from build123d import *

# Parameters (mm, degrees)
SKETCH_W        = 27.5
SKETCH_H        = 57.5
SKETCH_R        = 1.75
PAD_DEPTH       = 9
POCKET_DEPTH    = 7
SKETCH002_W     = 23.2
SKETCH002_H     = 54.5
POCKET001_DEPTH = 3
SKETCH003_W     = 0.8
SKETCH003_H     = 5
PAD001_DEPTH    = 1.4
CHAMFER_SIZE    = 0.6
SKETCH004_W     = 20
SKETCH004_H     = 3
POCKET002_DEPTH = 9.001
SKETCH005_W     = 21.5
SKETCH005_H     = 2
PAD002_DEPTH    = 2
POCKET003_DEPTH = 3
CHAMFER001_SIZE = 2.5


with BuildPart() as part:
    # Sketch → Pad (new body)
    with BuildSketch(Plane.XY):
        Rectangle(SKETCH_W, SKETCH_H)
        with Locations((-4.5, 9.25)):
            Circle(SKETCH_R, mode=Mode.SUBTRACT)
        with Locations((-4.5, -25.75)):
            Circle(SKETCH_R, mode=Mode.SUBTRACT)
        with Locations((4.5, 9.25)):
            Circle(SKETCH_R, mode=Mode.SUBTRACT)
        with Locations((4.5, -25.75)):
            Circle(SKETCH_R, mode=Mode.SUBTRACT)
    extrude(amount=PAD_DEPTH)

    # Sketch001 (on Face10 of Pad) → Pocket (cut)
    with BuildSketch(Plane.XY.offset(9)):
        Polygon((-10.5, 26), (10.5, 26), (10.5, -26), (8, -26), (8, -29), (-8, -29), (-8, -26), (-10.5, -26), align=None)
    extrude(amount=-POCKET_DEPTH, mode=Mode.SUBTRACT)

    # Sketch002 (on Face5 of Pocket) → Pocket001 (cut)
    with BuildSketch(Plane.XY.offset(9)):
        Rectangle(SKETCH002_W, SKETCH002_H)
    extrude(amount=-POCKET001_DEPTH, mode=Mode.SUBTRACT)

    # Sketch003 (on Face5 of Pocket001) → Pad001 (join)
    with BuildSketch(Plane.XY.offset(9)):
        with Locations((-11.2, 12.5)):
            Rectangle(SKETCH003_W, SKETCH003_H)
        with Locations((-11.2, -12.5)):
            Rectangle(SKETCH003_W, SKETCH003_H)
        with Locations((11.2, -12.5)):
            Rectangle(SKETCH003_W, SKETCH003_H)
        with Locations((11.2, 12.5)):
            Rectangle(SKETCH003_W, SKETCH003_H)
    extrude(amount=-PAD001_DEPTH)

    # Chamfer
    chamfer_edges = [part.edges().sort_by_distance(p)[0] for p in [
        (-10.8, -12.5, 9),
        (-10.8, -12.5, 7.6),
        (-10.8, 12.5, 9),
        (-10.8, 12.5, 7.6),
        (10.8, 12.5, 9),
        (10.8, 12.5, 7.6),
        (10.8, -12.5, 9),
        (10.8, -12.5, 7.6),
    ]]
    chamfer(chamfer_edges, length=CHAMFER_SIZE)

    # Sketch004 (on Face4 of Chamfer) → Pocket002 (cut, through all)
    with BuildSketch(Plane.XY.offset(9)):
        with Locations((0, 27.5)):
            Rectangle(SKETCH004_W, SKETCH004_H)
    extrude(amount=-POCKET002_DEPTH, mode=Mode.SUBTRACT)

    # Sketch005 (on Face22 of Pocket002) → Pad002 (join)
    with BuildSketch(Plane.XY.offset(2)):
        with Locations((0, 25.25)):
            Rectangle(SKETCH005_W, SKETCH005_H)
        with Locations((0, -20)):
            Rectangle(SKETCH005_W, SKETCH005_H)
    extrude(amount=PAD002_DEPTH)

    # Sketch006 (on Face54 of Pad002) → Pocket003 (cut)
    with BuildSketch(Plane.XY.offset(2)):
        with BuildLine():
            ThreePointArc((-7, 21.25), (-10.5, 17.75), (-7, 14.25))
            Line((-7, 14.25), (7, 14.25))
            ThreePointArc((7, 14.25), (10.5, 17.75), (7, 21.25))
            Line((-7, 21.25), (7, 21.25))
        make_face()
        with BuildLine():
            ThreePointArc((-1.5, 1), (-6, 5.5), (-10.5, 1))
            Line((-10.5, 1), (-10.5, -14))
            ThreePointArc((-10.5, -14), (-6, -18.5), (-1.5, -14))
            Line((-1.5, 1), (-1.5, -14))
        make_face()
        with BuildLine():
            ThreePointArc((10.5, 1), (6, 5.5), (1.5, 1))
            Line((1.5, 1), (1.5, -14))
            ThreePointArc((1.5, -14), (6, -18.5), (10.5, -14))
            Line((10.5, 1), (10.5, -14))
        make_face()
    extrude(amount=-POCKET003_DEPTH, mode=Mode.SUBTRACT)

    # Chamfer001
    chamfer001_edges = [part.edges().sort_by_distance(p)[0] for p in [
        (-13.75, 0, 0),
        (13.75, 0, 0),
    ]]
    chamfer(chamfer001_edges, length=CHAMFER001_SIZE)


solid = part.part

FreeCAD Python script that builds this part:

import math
import FreeCAD as App
import Part
import Sketcher
Q = App.Units.Quantity


def edges_at(feature, points):
    """Names of the edges that pass closest to the given points."""
    edges = feature.Shape.Edges
    near = lambda p: min(range(len(edges)), key=lambda i: edges[i].distToShape(Part.Vertex(*p))[0])
    return sorted({f"Edge{near(p) + 1}" for p in points})

doc = App.newDocument("Part")
body = doc.addObject("PartDesign::Body", "Body")

# Sketch on XY plane
sketch1 = doc.addObject("Sketcher::SketchObject", "Sketch")
body.addObject(sketch1)
sketch1.AttachmentSupport = (doc.XY_Plane, [""])
sketch1.MapMode = "FlatFace"
sketch1.addGeometry(Part.LineSegment(App.Vector(-13.8, 28.8, 0), App.Vector(-13.8, -28.8, 0)), False)
sketch1.addGeometry(Part.LineSegment(App.Vector(-13.8, -28.8, 0), App.Vector(13.8, -28.8, 0)), False)
sketch1.addGeometry(Part.LineSegment(App.Vector(13.8, -28.8, 0), App.Vector(13.8, 28.8, 0)), False)
sketch1.addGeometry(Part.LineSegment(App.Vector(13.8, 28.8, 0), App.Vector(-13.8, 28.8, 0)), False)
sketch1.addGeometry(Part.Circle(App.Vector(-4.5, -25.8, 0), App.Vector(0, 0, 1), 1.8), False)
sketch1.addGeometry(Part.Circle(App.Vector(4.5, -25.8, 0), App.Vector(0, 0, 1), 1.8), False)
sketch1.addGeometry(Part.Circle(App.Vector(-4.5, 9.2, 0), App.Vector(0, 0, 1), 1.8), False)
sketch1.addGeometry(Part.Circle(App.Vector(4.5, 9.2, 0), App.Vector(0, 0, 1), 1.8), False)
sketch1.addConstraint(Sketcher.Constraint("Coincident", 0, 2, 1, 1))
sketch1.addConstraint(Sketcher.Constraint("Coincident", 1, 2, 2, 1))
sketch1.addConstraint(Sketcher.Constraint("Coincident", 2, 2, 3, 1))
sketch1.addConstraint(Sketcher.Constraint("Coincident", 3, 2, 0, 1))
sketch1.addConstraint(Sketcher.Constraint("Vertical", 0))
sketch1.addConstraint(Sketcher.Constraint("Horizontal", 1))
sketch1.addConstraint(Sketcher.Constraint("Vertical", 2))
sketch1.addConstraint(Sketcher.Constraint("Horizontal", 3))
sketch1.addConstraint(Sketcher.Constraint("Equal", 4, 5))
sketch1.addConstraint(Sketcher.Constraint("Equal", 5, 6))
sketch1.addConstraint(Sketcher.Constraint("Equal", 6, 7))
sketch1.addConstraint(Sketcher.Constraint("Symmetric", 0, 2, 2, 2, -1, 1))
sketch1.addConstraint(Sketcher.Constraint("Symmetric", 4, 3, 5, 3, -2))
sketch1.addConstraint(Sketcher.Constraint("Symmetric", 6, 3, 7, 3, -2))
sketch1.addConstraint(Sketcher.Constraint("Vertical", 4, 3, 6, 3))
sketch1.addConstraint(Sketcher.Constraint("Diameter", 4, Q("3.5 mm")))
sketch1.addConstraint(Sketcher.Constraint("DistanceX", 1, 1, 1, 2, Q("27.5 mm")))
sketch1.addConstraint(Sketcher.Constraint("DistanceY", 0, 2, 0, 1, Q("57.5 mm")))
sketch1.addConstraint(Sketcher.Constraint("DistanceX", 4, 3, 5, 3, Q("9 mm")))
sketch1.addConstraint(Sketcher.Constraint("DistanceY", 4, 3, 6, 3, Q("35 mm")))
sketch1.addConstraint(Sketcher.Constraint("DistanceY", 0, 2, 4, 3, Q("3 mm")))
pad1 = doc.addObject("PartDesign::Pad", "Pad")
body.addObject(pad1)
pad1.Profile = sketch1
pad1.Length = 9

# Sketch on XY plane
sketch2 = doc.addObject("Sketcher::SketchObject", "Sketch001")
body.addObject(sketch2)
sketch2.AttachmentSupport = (doc.XY_Plane, [""])
sketch2.MapMode = "FlatFace"
sketch2.AttachmentOffset = App.Placement(App.Vector(0, 0, 9), App.Rotation())
sketch2.addGeometry(Part.LineSegment(App.Vector(10.5, 26, 0), App.Vector(-10.5, 26, 0)), False)
sketch2.addGeometry(Part.LineSegment(App.Vector(-10.5, 26, 0), App.Vector(-10.5, -26, 0)), False)
sketch2.addGeometry(Part.LineSegment(App.Vector(-10.5, -26, 0), App.Vector(-8, -26, 0)), False)
sketch2.addGeometry(Part.LineSegment(App.Vector(-8, -26, 0), App.Vector(-8, -29, 0)), False)
sketch2.addGeometry(Part.LineSegment(App.Vector(-8, -29, 0), App.Vector(8, -29, 0)), False)
sketch2.addGeometry(Part.LineSegment(App.Vector(8, -29, 0), App.Vector(8, -26, 0)), False)
sketch2.addGeometry(Part.LineSegment(App.Vector(8, -26, 0), App.Vector(10.5, -26, 0)), False)
sketch2.addGeometry(Part.LineSegment(App.Vector(10.5, -26, 0), App.Vector(10.5, 26, 0)), False)
sketch2.addConstraint(Sketcher.Constraint("Coincident", 0, 2, 1, 1))
sketch2.addConstraint(Sketcher.Constraint("Coincident", 1, 2, 2, 1))
sketch2.addConstraint(Sketcher.Constraint("Coincident", 2, 2, 3, 1))
sketch2.addConstraint(Sketcher.Constraint("Coincident", 3, 2, 4, 1))
sketch2.addConstraint(Sketcher.Constraint("Coincident", 4, 2, 5, 1))
sketch2.addConstraint(Sketcher.Constraint("Coincident", 5, 2, 6, 1))
sketch2.addConstraint(Sketcher.Constraint("Coincident", 6, 2, 7, 1))
sketch2.addConstraint(Sketcher.Constraint("Coincident", 7, 2, 0, 1))
sketch2.addConstraint(Sketcher.Constraint("Horizontal", 0))
sketch2.addConstraint(Sketcher.Constraint("Vertical", 1))
sketch2.addConstraint(Sketcher.Constraint("Horizontal", 2))
sketch2.addConstraint(Sketcher.Constraint("Vertical", 3))
sketch2.addConstraint(Sketcher.Constraint("Horizontal", 4))
sketch2.addConstraint(Sketcher.Constraint("Vertical", 5))
sketch2.addConstraint(Sketcher.Constraint("Horizontal", 6))
sketch2.addConstraint(Sketcher.Constraint("Vertical", 7))
sketch2.addConstraint(Sketcher.Constraint("Symmetric", 0, 2, 6, 2, -1, 1))
sketch2.addConstraint(Sketcher.Constraint("Symmetric", 2, 2, 5, 2, -2))
sketch2.addConstraint(Sketcher.Constraint("DistanceX", 0, 2, 0, 1, Q("21 mm")))
sketch2.addConstraint(Sketcher.Constraint("DistanceX", 4, 1, 4, 2, Q("16 mm")))
sketch2.addConstraint(Sketcher.Constraint("DistanceY", 1, 2, 1, 1, Q("52 mm")))
sketch2.addConstraint(Sketcher.Constraint("DistanceY", 3, 2, 3, 1, Q("3 mm")))
pocket1 = doc.addObject("PartDesign::Pocket", "Pocket")
body.addObject(pocket1)
pocket1.Profile = sketch2
pocket1.Length = 7

# Sketch on XY plane
sketch3 = doc.addObject("Sketcher::SketchObject", "Sketch002")
body.addObject(sketch3)
sketch3.AttachmentSupport = (doc.XY_Plane, [""])
sketch3.MapMode = "FlatFace"
sketch3.AttachmentOffset = App.Placement(App.Vector(0, 0, 9), App.Rotation())
sketch3.addGeometry(Part.LineSegment(App.Vector(-12, 27, 0), App.Vector(-12, -27, 0)), False)
sketch3.addGeometry(Part.LineSegment(App.Vector(-12, -27, 0), App.Vector(12, -27, 0)), False)
sketch3.addGeometry(Part.LineSegment(App.Vector(12, -27, 0), App.Vector(12, 27, 0)), False)
sketch3.addGeometry(Part.LineSegment(App.Vector(12, 27, 0), App.Vector(-12, 27, 0)), False)
sketch3.addConstraint(Sketcher.Constraint("Coincident", 0, 2, 1, 1))
sketch3.addConstraint(Sketcher.Constraint("Coincident", 1, 2, 2, 1))
sketch3.addConstraint(Sketcher.Constraint("Coincident", 2, 2, 3, 1))
sketch3.addConstraint(Sketcher.Constraint("Coincident", 3, 2, 0, 1))
sketch3.addConstraint(Sketcher.Constraint("Vertical", 0))
sketch3.addConstraint(Sketcher.Constraint("Horizontal", 1))
sketch3.addConstraint(Sketcher.Constraint("Vertical", 2))
sketch3.addConstraint(Sketcher.Constraint("Horizontal", 3))
sketch3.addConstraint(Sketcher.Constraint("Symmetric", 0, 2, 2, 2, -1, 1))
sketch3.addConstraint(Sketcher.Constraint("DistanceX", 1, 1, 1, 2, Q("23.2 mm")))
sketch3.addConstraint(Sketcher.Constraint("DistanceY", 0, 2, 0, 1, Q("54.5 mm")))
pocket2 = doc.addObject("PartDesign::Pocket", "Pocket001")
body.addObject(pocket2)
pocket2.Profile = sketch3
pocket2.Length = 3

# Sketch on XY plane
sketch4 = doc.addObject("Sketcher::SketchObject", "Sketch003")
body.addObject(sketch4)
sketch4.AttachmentSupport = (doc.XY_Plane, [""])
sketch4.MapMode = "FlatFace"
sketch4.AttachmentOffset = App.Placement(App.Vector(0, 0, 9), App.Rotation())
sketch4.addGeometry(Part.LineSegment(App.Vector(-11.6, 15, 0), App.Vector(-11.6, 10, 0)), False)
sketch4.addGeometry(Part.LineSegment(App.Vector(-11.6, 10, 0), App.Vector(-10.8, 10, 0)), False)
sketch4.addGeometry(Part.LineSegment(App.Vector(-10.8, 10, 0), App.Vector(-10.8, 15, 0)), False)
sketch4.addGeometry(Part.LineSegment(App.Vector(-10.8, 15, 0), App.Vector(-11.6, 15, 0)), False)
sketch4.addGeometry(Part.LineSegment(App.Vector(-11.6, -10, 0), App.Vector(-11.6, -15, 0)), False)
sketch4.addGeometry(Part.LineSegment(App.Vector(-11.6, -15, 0), App.Vector(-10.8, -15, 0)), False)
sketch4.addGeometry(Part.LineSegment(App.Vector(-10.8, -15, 0), App.Vector(-10.8, -10, 0)), False)
sketch4.addGeometry(Part.LineSegment(App.Vector(-10.8, -10, 0), App.Vector(-11.6, -10, 0)), False)
sketch4.addGeometry(Part.LineSegment(App.Vector(10.8, -10, 0), App.Vector(10.8, -15, 0)), False)
sketch4.addGeometry(Part.LineSegment(App.Vector(10.8, -15, 0), App.Vector(11.6, -15, 0)), False)
sketch4.addGeometry(Part.LineSegment(App.Vector(11.6, -15, 0), App.Vector(11.6, -10, 0)), False)
sketch4.addGeometry(Part.LineSegment(App.Vector(11.6, -10, 0), App.Vector(10.8, -10, 0)), False)
sketch4.addGeometry(Part.LineSegment(App.Vector(10.8, 15, 0), App.Vector(10.8, 10, 0)), False)
sketch4.addGeometry(Part.LineSegment(App.Vector(10.8, 10, 0), App.Vector(11.6, 10, 0)), False)
sketch4.addGeometry(Part.LineSegment(App.Vector(11.6, 10, 0), App.Vector(11.6, 15, 0)), False)
sketch4.addGeometry(Part.LineSegment(App.Vector(11.6, 15, 0), App.Vector(10.8, 15, 0)), False)
sketch4.addConstraint(Sketcher.Constraint("Coincident", 0, 2, 1, 1))
sketch4.addConstraint(Sketcher.Constraint("Coincident", 1, 2, 2, 1))
sketch4.addConstraint(Sketcher.Constraint("Coincident", 2, 2, 3, 1))
sketch4.addConstraint(Sketcher.Constraint("Coincident", 3, 2, 0, 1))
sketch4.addConstraint(Sketcher.Constraint("Coincident", 4, 2, 5, 1))
sketch4.addConstraint(Sketcher.Constraint("Coincident", 5, 2, 6, 1))
sketch4.addConstraint(Sketcher.Constraint("Coincident", 6, 2, 7, 1))
sketch4.addConstraint(Sketcher.Constraint("Coincident", 7, 2, 4, 1))
sketch4.addConstraint(Sketcher.Constraint("Coincident", 8, 2, 9, 1))
sketch4.addConstraint(Sketcher.Constraint("Coincident", 9, 2, 10, 1))
sketch4.addConstraint(Sketcher.Constraint("Coincident", 10, 2, 11, 1))
sketch4.addConstraint(Sketcher.Constraint("Coincident", 11, 2, 8, 1))
sketch4.addConstraint(Sketcher.Constraint("Coincident", 12, 2, 13, 1))
sketch4.addConstraint(Sketcher.Constraint("Coincident", 13, 2, 14, 1))
sketch4.addConstraint(Sketcher.Constraint("Coincident", 14, 2, 15, 1))
sketch4.addConstraint(Sketcher.Constraint("Coincident", 15, 2, 12, 1))
sketch4.addConstraint(Sketcher.Constraint("Vertical", 0))
sketch4.addConstraint(Sketcher.Constraint("Horizontal", 1))
sketch4.addConstraint(Sketcher.Constraint("Vertical", 2))
sketch4.addConstraint(Sketcher.Constraint("Horizontal", 3))
sketch4.addConstraint(Sketcher.Constraint("Vertical", 4))
sketch4.addConstraint(Sketcher.Constraint("Horizontal", 5))
sketch4.addConstraint(Sketcher.Constraint("Vertical", 6))
sketch4.addConstraint(Sketcher.Constraint("Horizontal", 7))
sketch4.addConstraint(Sketcher.Constraint("Vertical", 8))
sketch4.addConstraint(Sketcher.Constraint("Horizontal", 9))
sketch4.addConstraint(Sketcher.Constraint("Vertical", 10))
sketch4.addConstraint(Sketcher.Constraint("Horizontal", 11))
sketch4.addConstraint(Sketcher.Constraint("Vertical", 12))
sketch4.addConstraint(Sketcher.Constraint("Horizontal", 13))
sketch4.addConstraint(Sketcher.Constraint("Vertical", 14))
sketch4.addConstraint(Sketcher.Constraint("Horizontal", 15))
sketch4.addConstraint(Sketcher.Constraint("Symmetric", 2, 2, 8, 2, -1, 1))
sketch4.addConstraint(Sketcher.Constraint("Symmetric", 0, 2, 10, 2, -1, 1))
sketch4.addConstraint(Sketcher.Constraint("Symmetric", 6, 2, 12, 2, -1, 1))
sketch4.addConstraint(Sketcher.Constraint("Symmetric", 4, 2, 14, 2, -1, 1))
sketch4.addConstraint(Sketcher.Constraint("Symmetric", 5, 2, 8, 2, -2))
sketch4.addConstraint(Sketcher.Constraint("Symmetric", 7, 2, 10, 2, -2))
sketch4.addConstraint(Sketcher.Constraint("DistanceY", 0, 2, 0, 1, Q("5 mm")))
sketch4.addConstraint(Sketcher.Constraint("DistanceX", 1, 1, 1, 2, Q("0.8 mm")))
sketch4.addConstraint(Sketcher.Constraint("DistanceY", -1, 1, 0, 2, Q("10 mm")))
sketch4.addConstraint(Sketcher.Constraint("DistanceX", 0, 2, -1, 1, Q("11.6 mm")))
pad2 = doc.addObject("PartDesign::Pad", "Pad001")
body.addObject(pad2)
pad2.Profile = sketch4
pad2.Length = 1.4
pad2.Reversed = True
doc.recompute()

chamfer = doc.addObject("PartDesign::Chamfer", "Chamfer")
body.addObject(chamfer)
chamfer.Base = (pad2, edges_at(pad2, [
    (-10.8, -12.5, 9),
    (-10.8, -12.5, 7.6),
    (-10.8, 12.5, 9),
    (-10.8, 12.5, 7.6),
    (10.8, 12.5, 9),
    (10.8, 12.5, 7.6),
    (10.8, -12.5, 9),
    (10.8, -12.5, 7.6),
]))
chamfer.Size = 0.6

# Sketch on XY plane
sketch5 = doc.addObject("Sketcher::SketchObject", "Sketch004")
body.addObject(sketch5)
sketch5.AttachmentSupport = (doc.XY_Plane, [""])
sketch5.MapMode = "FlatFace"
sketch5.AttachmentOffset = App.Placement(App.Vector(0, 0, 9), App.Rotation())
sketch5.addGeometry(Part.LineSegment(App.Vector(-10, 29, 0), App.Vector(-10, 26, 0)), False)
sketch5.addGeometry(Part.LineSegment(App.Vector(-10, 26, 0), App.Vector(10, 26, 0)), False)
sketch5.addGeometry(Part.LineSegment(App.Vector(10, 26, 0), App.Vector(10, 29, 0)), False)
sketch5.addGeometry(Part.LineSegment(App.Vector(10, 29, 0), App.Vector(-10, 29, 0)), False)
sketch5.addConstraint(Sketcher.Constraint("Coincident", 0, 2, 1, 1))
sketch5.addConstraint(Sketcher.Constraint("Coincident", 1, 2, 2, 1))
sketch5.addConstraint(Sketcher.Constraint("Coincident", 2, 2, 3, 1))
sketch5.addConstraint(Sketcher.Constraint("Coincident", 3, 2, 0, 1))
sketch5.addConstraint(Sketcher.Constraint("Vertical", 0))
sketch5.addConstraint(Sketcher.Constraint("Horizontal", 1))
sketch5.addConstraint(Sketcher.Constraint("Vertical", 2))
sketch5.addConstraint(Sketcher.Constraint("Horizontal", 3))
sketch5.addConstraint(Sketcher.Constraint("DistanceX", 1, 1, 1, 2, Q("20 mm")))
sketch5.addConstraint(Sketcher.Constraint("DistanceY", 0, 2, 0, 1, Q("3 mm")))
sketch5.addConstraint(Sketcher.Constraint("DistanceX", 0, 2, -1, 1, Q("10 mm")))
sketch5.addConstraint(Sketcher.Constraint("DistanceY", -1, 1, 0, 2, Q("26 mm")))
pocket3 = doc.addObject("PartDesign::Pocket", "Pocket002")
body.addObject(pocket3)
pocket3.Profile = sketch5
pocket3.Type = "ThroughAll"

# Sketch on XY plane
sketch6 = doc.addObject("Sketcher::SketchObject", "Sketch005")
body.addObject(sketch6)
sketch6.AttachmentSupport = (doc.XY_Plane, [""])
sketch6.MapMode = "FlatFace"
sketch6.AttachmentOffset = App.Placement(App.Vector(0, 0, 2), App.Rotation())
sketch6.addGeometry(Part.LineSegment(App.Vector(-10.8, 26.2, 0), App.Vector(-10.8, 24.2, 0)), False)
sketch6.addGeometry(Part.LineSegment(App.Vector(-10.8, 24.2, 0), App.Vector(10.8, 24.2, 0)), False)
sketch6.addGeometry(Part.LineSegment(App.Vector(10.8, 24.2, 0), App.Vector(10.8, 26.2, 0)), False)
sketch6.addGeometry(Part.LineSegment(App.Vector(10.8, 26.2, 0), App.Vector(-10.8, 26.2, 0)), False)
sketch6.addGeometry(Part.LineSegment(App.Vector(-10.8, -19, 0), App.Vector(-10.8, -21, 0)), False)
sketch6.addGeometry(Part.LineSegment(App.Vector(-10.8, -21, 0), App.Vector(10.8, -21, 0)), False)
sketch6.addGeometry(Part.LineSegment(App.Vector(10.8, -21, 0), App.Vector(10.8, -19, 0)), False)
sketch6.addGeometry(Part.LineSegment(App.Vector(10.8, -19, 0), App.Vector(-10.8, -19, 0)), False)
sketch6.addConstraint(Sketcher.Constraint("Coincident", 0, 2, 1, 1))
sketch6.addConstraint(Sketcher.Constraint("Coincident", 1, 2, 2, 1))
sketch6.addConstraint(Sketcher.Constraint("Coincident", 2, 2, 3, 1))
sketch6.addConstraint(Sketcher.Constraint("Coincident", 3, 2, 0, 1))
sketch6.addConstraint(Sketcher.Constraint("Coincident", 4, 2, 5, 1))
sketch6.addConstraint(Sketcher.Constraint("Coincident", 5, 2, 6, 1))
sketch6.addConstraint(Sketcher.Constraint("Coincident", 6, 2, 7, 1))
sketch6.addConstraint(Sketcher.Constraint("Coincident", 7, 2, 4, 1))
sketch6.addConstraint(Sketcher.Constraint("Vertical", 0))
sketch6.addConstraint(Sketcher.Constraint("Horizontal", 1))
sketch6.addConstraint(Sketcher.Constraint("Vertical", 2))
sketch6.addConstraint(Sketcher.Constraint("Horizontal", 3))
sketch6.addConstraint(Sketcher.Constraint("Vertical", 4))
sketch6.addConstraint(Sketcher.Constraint("Horizontal", 5))
sketch6.addConstraint(Sketcher.Constraint("Vertical", 6))
sketch6.addConstraint(Sketcher.Constraint("Horizontal", 7))
sketch6.addConstraint(Sketcher.Constraint("Vertical", 3, 2, 4, 2))
sketch6.addConstraint(Sketcher.Constraint("Vertical", 2, 2, 5, 2))
sketch6.addConstraint(Sketcher.Constraint("Equal", 2, 4))
sketch6.addConstraint(Sketcher.Constraint("DistanceY", 0, 2, 0, 1, Q("2 mm")))
sketch6.addConstraint(Sketcher.Constraint("DistanceX", 1, 1, 1, 2, Q("21.5 mm")))
sketch6.addConstraint(Sketcher.Constraint("DistanceY", 4, 2, -1, 1, Q("21 mm")))
sketch6.addConstraint(Sketcher.Constraint("DistanceX", 0, 2, -1, 1, Q("10.75 mm")))
sketch6.addConstraint(Sketcher.Constraint("DistanceY", -1, 1, 0, 2, Q("24.25 mm")))
pad3 = doc.addObject("PartDesign::Pad", "Pad002")
body.addObject(pad3)
pad3.Profile = sketch6
pad3.Length = 2

# Sketch on XY plane
sketch7 = doc.addObject("Sketcher::SketchObject", "Sketch006")
body.addObject(sketch7)
sketch7.AttachmentSupport = (doc.XY_Plane, [""])
sketch7.MapMode = "FlatFace"
sketch7.AttachmentOffset = App.Placement(App.Vector(0, 0, 2), App.Rotation())
sketch7.addGeometry(Part.ArcOfCircle(Part.Circle(App.Vector(-7, 17.8, 0), App.Vector(0, 0, 1), 3.5), math.radians(90), math.radians(270)), False)
sketch7.addGeometry(Part.LineSegment(App.Vector(-7, 14.2, 0), App.Vector(7, 14.2, 0)), False)
sketch7.addGeometry(Part.ArcOfCircle(Part.Circle(App.Vector(7, 17.8, 0), App.Vector(0, 0, 1), 3.5), math.radians(-90), math.radians(90)), False)
sketch7.addGeometry(Part.LineSegment(App.Vector(7, 21.2, 0), App.Vector(-7, 21.2, 0)), False)
sketch7.addGeometry(Part.ArcOfCircle(Part.Circle(App.Vector(-6, 1, 0), App.Vector(0, 0, 1), 4.5), math.radians(0), math.radians(180)), False)
sketch7.addGeometry(Part.LineSegment(App.Vector(-10.5, 1, 0), App.Vector(-10.5, -14, 0)), False)
sketch7.addGeometry(Part.ArcOfCircle(Part.Circle(App.Vector(-6, -14, 0), App.Vector(0, 0, 1), 4.5), math.radians(180), math.radians(360)), False)
sketch7.addGeometry(Part.LineSegment(App.Vector(-1.5, -14, 0), App.Vector(-1.5, 1, 0)), False)
sketch7.addGeometry(Part.ArcOfCircle(Part.Circle(App.Vector(6, 1, 0), App.Vector(0, 0, 1), 4.5), math.radians(0), math.radians(180)), False)
sketch7.addGeometry(Part.LineSegment(App.Vector(1.5, 1, 0), App.Vector(1.5, -14, 0)), False)
sketch7.addGeometry(Part.ArcOfCircle(Part.Circle(App.Vector(6, -14, 0), App.Vector(0, 0, 1), 4.5), math.radians(180), math.radians(360)), False)
sketch7.addGeometry(Part.LineSegment(App.Vector(10.5, -14, 0), App.Vector(10.5, 1, 0)), False)
sketch7.addConstraint(Sketcher.Constraint("Tangent", 0, 2, 1, 1))
sketch7.addConstraint(Sketcher.Constraint("Tangent", 1, 2, 2, 1))
sketch7.addConstraint(Sketcher.Constraint("Tangent", 2, 2, 3, 1))
sketch7.addConstraint(Sketcher.Constraint("Tangent", 3, 2, 0, 1))
sketch7.addConstraint(Sketcher.Constraint("Tangent", 4, 2, 5, 1))
sketch7.addConstraint(Sketcher.Constraint("Tangent", 5, 2, 6, 1))
sketch7.addConstraint(Sketcher.Constraint("Tangent", 6, 2, 7, 1))
sketch7.addConstraint(Sketcher.Constraint("Tangent", 7, 2, 4, 1))
sketch7.addConstraint(Sketcher.Constraint("Tangent", 8, 2, 9, 1))
sketch7.addConstraint(Sketcher.Constraint("Tangent", 9, 2, 10, 1))
sketch7.addConstraint(Sketcher.Constraint("Tangent", 10, 2, 11, 1))
sketch7.addConstraint(Sketcher.Constraint("Tangent", 11, 2, 8, 1))
sketch7.addConstraint(Sketcher.Constraint("Horizontal", 1))
sketch7.addConstraint(Sketcher.Constraint("Horizontal", 3))
sketch7.addConstraint(Sketcher.Constraint("Vertical", 5))
sketch7.addConstraint(Sketcher.Constraint("Vertical", 7))
sketch7.addConstraint(Sketcher.Constraint("Vertical", 9))
sketch7.addConstraint(Sketcher.Constraint("Vertical", 11))
sketch7.addConstraint(Sketcher.Constraint("Equal", 6, 8))
sketch7.addConstraint(Sketcher.Constraint("Symmetric", 4, 3, 8, 3, -2))
sketch7.addConstraint(Sketcher.Constraint("Horizontal", 6, 3, 10, 3))
sketch7.addConstraint(Sketcher.Constraint("Radius", 0, Q("3.5 mm")))
sketch7.addConstraint(Sketcher.Constraint("Radius", 4, Q("4.5 mm")))
sketch7.addConstraint(Sketcher.Constraint("DistanceX", 1, 1, 1, 2, Q("14 mm")))
sketch7.addConstraint(Sketcher.Constraint("DistanceY", 5, 2, 5, 1, Q("15 mm")))
sketch7.addConstraint(Sketcher.Constraint("DistanceX", 0, 3, -1, 1, Q("7 mm")))
sketch7.addConstraint(Sketcher.Constraint("DistanceX", 4, 3, -1, 1, Q("6 mm")))
sketch7.addConstraint(Sketcher.Constraint("DistanceY", -1, 1, 4, 3, Q("1 mm")))
sketch7.addConstraint(Sketcher.Constraint("DistanceY", -1, 1, 0, 3, Q("17.75 mm")))
pocket4 = doc.addObject("PartDesign::Pocket", "Pocket003")
body.addObject(pocket4)
pocket4.Profile = sketch7
pocket4.Length = 3
doc.recompute()

chamfer2 = doc.addObject("PartDesign::Chamfer", "Chamfer001")
body.addObject(chamfer2)
chamfer2.Base = (pocket4, edges_at(pocket4, [(-13.75, 0, 0), (13.75, 0, 0)]))
chamfer2.Size = 2.5

doc.recompute()
